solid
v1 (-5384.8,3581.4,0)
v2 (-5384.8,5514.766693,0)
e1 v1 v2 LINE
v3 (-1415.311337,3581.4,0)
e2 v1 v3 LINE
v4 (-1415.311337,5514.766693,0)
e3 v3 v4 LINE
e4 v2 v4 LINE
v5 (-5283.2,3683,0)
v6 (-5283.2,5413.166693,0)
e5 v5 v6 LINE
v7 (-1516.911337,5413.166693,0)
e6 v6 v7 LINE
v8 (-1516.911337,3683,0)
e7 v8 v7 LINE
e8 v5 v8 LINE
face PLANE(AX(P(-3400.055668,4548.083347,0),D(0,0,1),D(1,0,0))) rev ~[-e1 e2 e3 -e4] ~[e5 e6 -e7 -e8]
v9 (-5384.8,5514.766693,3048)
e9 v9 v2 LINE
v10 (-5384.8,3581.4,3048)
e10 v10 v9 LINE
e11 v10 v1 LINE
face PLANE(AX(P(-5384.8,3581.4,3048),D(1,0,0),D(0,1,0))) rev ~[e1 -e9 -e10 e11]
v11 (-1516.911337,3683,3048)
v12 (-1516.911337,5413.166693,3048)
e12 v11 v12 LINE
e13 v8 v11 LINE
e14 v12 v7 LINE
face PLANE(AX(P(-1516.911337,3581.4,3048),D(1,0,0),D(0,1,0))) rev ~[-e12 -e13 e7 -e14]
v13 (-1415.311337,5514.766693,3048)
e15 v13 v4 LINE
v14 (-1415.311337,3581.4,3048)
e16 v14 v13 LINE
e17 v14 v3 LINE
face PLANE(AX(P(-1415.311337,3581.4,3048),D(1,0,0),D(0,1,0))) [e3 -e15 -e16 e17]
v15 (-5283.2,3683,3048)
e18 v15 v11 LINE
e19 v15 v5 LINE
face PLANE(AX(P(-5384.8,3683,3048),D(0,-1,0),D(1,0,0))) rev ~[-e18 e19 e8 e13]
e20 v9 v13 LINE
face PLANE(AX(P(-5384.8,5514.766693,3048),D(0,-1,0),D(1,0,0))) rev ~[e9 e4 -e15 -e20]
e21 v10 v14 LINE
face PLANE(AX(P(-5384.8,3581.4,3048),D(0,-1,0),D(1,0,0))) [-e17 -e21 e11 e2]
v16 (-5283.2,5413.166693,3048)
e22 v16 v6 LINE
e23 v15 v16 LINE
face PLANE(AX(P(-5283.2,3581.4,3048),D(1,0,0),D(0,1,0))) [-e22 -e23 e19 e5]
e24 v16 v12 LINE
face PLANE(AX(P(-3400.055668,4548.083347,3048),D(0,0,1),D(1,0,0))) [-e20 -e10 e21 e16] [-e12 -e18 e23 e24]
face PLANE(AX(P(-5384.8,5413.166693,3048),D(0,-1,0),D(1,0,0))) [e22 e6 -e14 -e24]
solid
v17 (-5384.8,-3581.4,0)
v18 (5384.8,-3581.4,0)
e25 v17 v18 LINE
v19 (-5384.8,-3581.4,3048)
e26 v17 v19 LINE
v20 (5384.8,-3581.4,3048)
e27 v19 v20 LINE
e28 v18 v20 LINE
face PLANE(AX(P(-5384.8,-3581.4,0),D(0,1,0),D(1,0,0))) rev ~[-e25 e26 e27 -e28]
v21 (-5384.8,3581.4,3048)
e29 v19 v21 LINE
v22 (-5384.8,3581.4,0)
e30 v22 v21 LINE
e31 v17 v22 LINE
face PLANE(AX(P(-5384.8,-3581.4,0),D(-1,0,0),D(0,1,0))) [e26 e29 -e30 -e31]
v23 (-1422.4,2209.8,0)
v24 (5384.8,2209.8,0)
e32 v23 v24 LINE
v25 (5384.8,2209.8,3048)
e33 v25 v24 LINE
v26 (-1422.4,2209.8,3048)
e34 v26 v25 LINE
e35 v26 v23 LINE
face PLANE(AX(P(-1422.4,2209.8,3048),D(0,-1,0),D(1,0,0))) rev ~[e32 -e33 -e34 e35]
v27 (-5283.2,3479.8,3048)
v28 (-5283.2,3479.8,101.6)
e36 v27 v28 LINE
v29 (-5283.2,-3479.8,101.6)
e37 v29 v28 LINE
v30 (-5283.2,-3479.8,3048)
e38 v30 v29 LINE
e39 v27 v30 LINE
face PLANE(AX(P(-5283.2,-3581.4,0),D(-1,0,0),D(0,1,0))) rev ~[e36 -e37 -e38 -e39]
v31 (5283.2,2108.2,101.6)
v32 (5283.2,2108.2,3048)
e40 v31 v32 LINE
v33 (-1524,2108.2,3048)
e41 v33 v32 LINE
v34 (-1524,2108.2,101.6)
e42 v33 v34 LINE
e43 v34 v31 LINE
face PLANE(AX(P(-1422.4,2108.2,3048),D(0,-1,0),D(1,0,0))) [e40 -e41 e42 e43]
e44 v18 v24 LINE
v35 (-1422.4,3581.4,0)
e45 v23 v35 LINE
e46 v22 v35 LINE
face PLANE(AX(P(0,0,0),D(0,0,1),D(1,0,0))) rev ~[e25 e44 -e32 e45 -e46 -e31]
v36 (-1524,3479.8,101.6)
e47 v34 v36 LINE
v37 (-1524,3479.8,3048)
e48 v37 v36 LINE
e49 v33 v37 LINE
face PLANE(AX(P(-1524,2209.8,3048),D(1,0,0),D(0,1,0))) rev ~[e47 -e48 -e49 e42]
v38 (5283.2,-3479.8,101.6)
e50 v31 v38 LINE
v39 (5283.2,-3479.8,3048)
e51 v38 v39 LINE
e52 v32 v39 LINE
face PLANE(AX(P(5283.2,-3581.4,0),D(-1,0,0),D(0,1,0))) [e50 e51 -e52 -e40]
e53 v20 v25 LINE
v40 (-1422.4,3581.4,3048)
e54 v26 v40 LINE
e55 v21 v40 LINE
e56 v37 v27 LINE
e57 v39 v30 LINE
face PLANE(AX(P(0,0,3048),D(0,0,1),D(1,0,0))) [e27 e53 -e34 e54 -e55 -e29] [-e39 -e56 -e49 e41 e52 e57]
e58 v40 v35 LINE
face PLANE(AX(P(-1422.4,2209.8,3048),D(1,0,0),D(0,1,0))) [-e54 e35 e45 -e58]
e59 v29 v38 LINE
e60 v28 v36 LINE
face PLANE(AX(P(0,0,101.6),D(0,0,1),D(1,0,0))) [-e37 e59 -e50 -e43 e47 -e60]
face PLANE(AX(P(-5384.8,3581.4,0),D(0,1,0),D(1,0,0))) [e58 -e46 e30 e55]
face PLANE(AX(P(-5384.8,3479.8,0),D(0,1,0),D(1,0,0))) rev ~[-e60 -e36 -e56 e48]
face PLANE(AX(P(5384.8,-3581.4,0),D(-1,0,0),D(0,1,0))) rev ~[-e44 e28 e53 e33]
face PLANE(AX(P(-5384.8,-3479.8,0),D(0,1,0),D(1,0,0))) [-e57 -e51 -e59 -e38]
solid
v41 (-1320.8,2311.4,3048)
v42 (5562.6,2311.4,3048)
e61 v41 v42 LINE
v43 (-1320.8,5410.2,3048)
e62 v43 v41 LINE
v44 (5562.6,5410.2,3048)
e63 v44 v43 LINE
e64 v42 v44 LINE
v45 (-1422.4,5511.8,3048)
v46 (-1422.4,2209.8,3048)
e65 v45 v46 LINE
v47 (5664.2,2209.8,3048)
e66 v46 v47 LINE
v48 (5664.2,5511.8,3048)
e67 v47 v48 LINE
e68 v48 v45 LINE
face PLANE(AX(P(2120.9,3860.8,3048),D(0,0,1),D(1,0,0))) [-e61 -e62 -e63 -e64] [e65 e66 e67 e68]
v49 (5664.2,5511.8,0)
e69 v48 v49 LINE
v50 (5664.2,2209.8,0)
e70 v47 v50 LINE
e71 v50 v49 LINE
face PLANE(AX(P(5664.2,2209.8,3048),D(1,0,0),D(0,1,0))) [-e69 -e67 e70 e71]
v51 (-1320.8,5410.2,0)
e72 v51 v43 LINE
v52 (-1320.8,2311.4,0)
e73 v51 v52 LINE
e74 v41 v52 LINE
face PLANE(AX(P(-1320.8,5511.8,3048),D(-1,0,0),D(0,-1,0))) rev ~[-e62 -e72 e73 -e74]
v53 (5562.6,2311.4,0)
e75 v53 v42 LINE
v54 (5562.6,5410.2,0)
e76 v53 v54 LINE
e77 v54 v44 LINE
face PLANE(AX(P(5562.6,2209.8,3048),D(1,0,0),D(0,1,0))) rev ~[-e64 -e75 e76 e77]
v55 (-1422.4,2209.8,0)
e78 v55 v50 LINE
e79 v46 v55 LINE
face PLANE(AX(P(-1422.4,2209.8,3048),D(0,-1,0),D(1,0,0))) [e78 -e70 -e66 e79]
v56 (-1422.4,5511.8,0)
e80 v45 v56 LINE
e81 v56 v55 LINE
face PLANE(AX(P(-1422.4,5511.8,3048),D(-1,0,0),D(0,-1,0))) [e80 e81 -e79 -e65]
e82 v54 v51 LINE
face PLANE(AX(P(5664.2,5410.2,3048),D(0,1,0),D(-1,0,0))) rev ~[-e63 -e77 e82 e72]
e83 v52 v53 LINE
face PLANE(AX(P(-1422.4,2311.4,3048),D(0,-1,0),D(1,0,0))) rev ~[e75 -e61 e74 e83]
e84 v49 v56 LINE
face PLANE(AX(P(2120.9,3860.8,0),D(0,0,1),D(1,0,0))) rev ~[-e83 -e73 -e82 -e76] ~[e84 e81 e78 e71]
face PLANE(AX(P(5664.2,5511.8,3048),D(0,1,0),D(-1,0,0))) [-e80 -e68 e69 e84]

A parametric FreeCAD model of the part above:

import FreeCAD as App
import Part
import Sketcher
from FreeCAD import Vector
Q = App.Units.Quantity


def faces_at(feature, points):
    """Names of the faces that lie closest to the given points."""
    faces = feature.Shape.Faces
    near = lambda p: min(range(len(faces)), key=lambda i: faces[i].distToShape(Part.Vertex(*p))[0])
    return sorted({f"Face{near(p) + 1}" for p in points})

doc = App.newDocument("Part")
body = doc.addObject("PartDesign::Body", "Body")

# Sketch on XY plane
sketch1 = body.newObject("Sketcher::SketchObject", "Sketch")
sketch1.AttachmentSupport = (doc.getObject("XY_Plane"), [""])
sketch1.MapMode = "FlatFace"
sketch1.addGeometry([
    Part.LineSegment(Vector(-5384.8, 3581.4, 0), Vector(-5384.8, -3581.4, 0)),
    Part.LineSegment(Vector(-5384.8, -3581.4, 0), Vector(5384.8, -3581.4, 0)),
    Part.LineSegment(Vector(5384.8, -3581.4, 0), Vector(5384.8, 3581.4, 0)),
    Part.LineSegment(Vector(5384.8, 3581.4, 0), Vector(-5384.8, 3581.4, 0)),
], False)
sketch1.addConstraint([
    Sketcher.Constraint("Coincident", 0, 2, 1, 1),
    Sketcher.Constraint("Coincident", 1, 2, 2, 1),
    Sketcher.Constraint("Coincident", 2, 2, 3, 1),
    Sketcher.Constraint("Coincident", 3, 2, 0, 1),
    Sketcher.Constraint("Vertical", 0),
    Sketcher.Constraint("Horizontal", 1),
    Sketcher.Constraint("Vertical", 2),
    Sketcher.Constraint("Horizontal", 3),
    Sketcher.Constraint("Symmetric", 0, 2, 2, 2, -1, 1),
    Sketcher.Constraint("DistanceX", 1, 1, 1, 2, Q("424 in")),
    Sketcher.Constraint("DistanceY", 0, 2, 0, 1, Q("282 in")),
])
pad1 = body.newObject("PartDesign::Pad", "Pad")
pad1.Profile = sketch1
pad1.Length = Q("120 in")

# Sketch on XY plane
sketch2 = body.newObject("Sketcher::SketchObject", "Sketch001")
sketch2.AttachmentSupport = (doc.getObject("XY_Plane"), [""])
sketch2.MapMode = "FlatFace"
sketch2.AttachmentOffset = App.Placement(Vector(0, 0, 120 * 25.4), App.Rotation())
sketch2.addGeometry([
    Part.LineSegment(Vector(-1422.4, 3581.4, 0), Vector(-1422.4, 2209.8, 0)),
    Part.LineSegment(Vector(-1422.4, 2209.8, 0), Vector(5384.8, 2209.8, 0)),
    Part.LineSegment(Vector(5384.8, 2209.8, 0), Vector(5384.8, 3581.4, 0)),
    Part.LineSegment(Vector(5384.8, 3581.4, 0), Vector(-1422.4, 3581.4, 0)),
], False)
sketch2.addConstraint([
    Sketcher.Constraint("Coincident", 0, 2, 1, 1),
    Sketcher.Constraint("Coincident", 1, 2, 2, 1),
    Sketcher.Constraint("Coincident", 2, 2, 3, 1),
    Sketcher.Constraint("Coincident", 3, 2, 0, 1),
    Sketcher.Constraint("Vertical", 0),
    Sketcher.Constraint("Horizontal", 1),
    Sketcher.Constraint("Vertical", 2),
    Sketcher.Constraint("Horizontal", 3),
    Sketcher.Constraint("DistanceX", 1, 1, 1, 2, Q("268 in")),
    Sketcher.Constraint("DistanceY", 0, 2, 0, 1, Q("54 in")),
    Sketcher.Constraint("DistanceX", 0, 2, -1, 1, Q("56 in")),
    Sketcher.Constraint("DistanceY", -1, 1, 0, 2, Q("87 in")),
])
pocket1 = body.newObject("PartDesign::Pocket", "Pocket")
pocket1.Profile = sketch2
pocket1.Type = "ThroughAll"
doc.recompute()

thickness = body.newObject("PartDesign::Thickness", "Thickness")
thickness.Base = (pocket1, faces_at(pocket1, [(0, 0, 3048)]))
thickness.Value = Q("4 in")
thickness.Reversed = True
thickness.Join = "Intersection"
body2 = doc.addObject("PartDesign::Body", "Body001")

# Sketch on XY plane
sketch3 = body2.newObject("Sketcher::SketchObject", "Sketch002")
sketch3.AttachmentSupport = (doc.getObject("XY_Plane001"), [""])
sketch3.MapMode = "FlatFace"
sketch3.AttachmentOffset = App.Placement(Vector(0, 0, 120 * 25.4), App.Rotation())
sketch3.addGeometry([
    Part.LineSegment(Vector(-1422.4, 2209.8, 0), Vector(5664.2, 2209.8, 0)),
    Part.LineSegment(Vector(5664.2, 2209.8, 0), Vector(5664.2, 5511.8, 0)),
    Part.LineSegment(Vector(5664.2, 5511.8, 0), Vector(-1422.4, 5511.8, 0)),
    Part.LineSegment(Vector(-1422.4, 5511.8, 0), Vector(-1422.4, 2209.8, 0)),
], False)
sketch3.addConstraint([
    Sketcher.Constraint("Coincident", 0, 2, 1, 1),
    Sketcher.Constraint("Coincident", 1, 2, 2, 1),
    Sketcher.Constraint("Coincident", 2, 2, 3, 1),
    Sketcher.Constraint("Coincident", 3, 2, 0, 1),
    Sketcher.Constraint("Horizontal", 0),
    Sketcher.Constraint("Vertical", 1),
    Sketcher.Constraint("Horizontal", 2),
    Sketcher.Constraint("Vertical", 3),
    Sketcher.Constraint("DistanceX", 0, 1, 0, 2, Q("279 in")),
    Sketcher.Constraint("DistanceY", 1, 1, 1, 2, Q("130 in")),
    Sketcher.Constraint("DistanceX", -1, 1, 0, 2, Q("223 in")),
    Sketcher.Constraint("DistanceY", -1, 1, 0, 2, Q("87 in")),
])
pad2 = body2.newObject("PartDesign::Pad", "Pad001")
pad2.Profile = sketch3
pad2.Length = Q("120 in")
pad2.Reversed = True
doc.recompute()

thickness2 = body2.newObject("PartDesign::Thickness", "Thickness001")
thickness2.Base = (pad2, faces_at(pad2, [(2120.9, 3860.8, 3048), (2120.9, 3860.8, 0)]))
thickness2.Value = Q("4 in")
thickness2.Reversed = True
thickness2.Join = "Arc"
body3 = doc.addObject("PartDesign::Body", "Body002")

# Sketch on XY plane
sketch4 = body3.newObject("Sketcher::SketchObject", "Sketch003")
sketch4.AttachmentSupport = (doc.getObject("XY_Plane002"), [""])
sketch4.MapMode = "FlatFace"
sketch4.AttachmentOffset = App.Placement(Vector(0, 0, 120 * 25.4), App.Rotation())
sketch4.addGeometry([
    Part.LineSegment(Vector(-5384.8, 5514.766693, 0), Vector(-5384.8, 3581.4, 0)),
    Part.LineSegment(Vector(-5384.8, 3581.4, 0), Vector(-1415.311337, 3581.4, 0)),
    Part.LineSegment(Vector(-1415.311337, 3581.4, 0), Vector(-1415.311337, 5514.766693, 0)),
    Part.LineSegment(Vector(-1415.311337, 5514.766693, 0), Vector(-5384.8, 5514.766693, 0)),
], False)
sketch4.addConstraint([
    Sketcher.Constraint("Coincident", 0, 2, 1, 1),
    Sketcher.Constraint("Coincident", 1, 2, 2, 1),
    Sketcher.Constraint("Coincident", 2, 2, 3, 1),
    Sketcher.Constraint("Coincident", 3, 2, 0, 1),
    Sketcher.Constraint("Vertical", 0),
    Sketcher.Constraint("Horizontal", 1),
    Sketcher.Constraint("Vertical", 2),
    Sketcher.Constraint("Horizontal", 3),
    Sketcher.Constraint("DistanceX", 0, 2, -1, 1, Q("212 in")),
    Sketcher.Constraint("DistanceY", -1, 1, 0, 2, Q("141 in")),
    Sketcher.Constraint("DistanceX", 1, 1, 1, 2, Q("3969.488663 mm")),
    Sketcher.Constraint("DistanceY", 0, 2, 0, 1, Q("1933.366693 mm")),
])
pad3 = body3.newObject("PartDesign::Pad", "Pad002")
pad3.Profile = sketch4
pad3.Length = Q("120 in")
pad3.Reversed = True
doc.recompute()

thickness3 = body3.newObject("PartDesign::Thickness", "Thickness002")
thickness3.Base = (pad3, faces_at(pad3, [(-3400.056, 4548.083, 0), (-3400.056, 4548.083, 3048)]))
thickness3.Value = Q("4 in")
thickness3.Reversed = True
thickness3.Join = "Arc"

doc.recompute()
